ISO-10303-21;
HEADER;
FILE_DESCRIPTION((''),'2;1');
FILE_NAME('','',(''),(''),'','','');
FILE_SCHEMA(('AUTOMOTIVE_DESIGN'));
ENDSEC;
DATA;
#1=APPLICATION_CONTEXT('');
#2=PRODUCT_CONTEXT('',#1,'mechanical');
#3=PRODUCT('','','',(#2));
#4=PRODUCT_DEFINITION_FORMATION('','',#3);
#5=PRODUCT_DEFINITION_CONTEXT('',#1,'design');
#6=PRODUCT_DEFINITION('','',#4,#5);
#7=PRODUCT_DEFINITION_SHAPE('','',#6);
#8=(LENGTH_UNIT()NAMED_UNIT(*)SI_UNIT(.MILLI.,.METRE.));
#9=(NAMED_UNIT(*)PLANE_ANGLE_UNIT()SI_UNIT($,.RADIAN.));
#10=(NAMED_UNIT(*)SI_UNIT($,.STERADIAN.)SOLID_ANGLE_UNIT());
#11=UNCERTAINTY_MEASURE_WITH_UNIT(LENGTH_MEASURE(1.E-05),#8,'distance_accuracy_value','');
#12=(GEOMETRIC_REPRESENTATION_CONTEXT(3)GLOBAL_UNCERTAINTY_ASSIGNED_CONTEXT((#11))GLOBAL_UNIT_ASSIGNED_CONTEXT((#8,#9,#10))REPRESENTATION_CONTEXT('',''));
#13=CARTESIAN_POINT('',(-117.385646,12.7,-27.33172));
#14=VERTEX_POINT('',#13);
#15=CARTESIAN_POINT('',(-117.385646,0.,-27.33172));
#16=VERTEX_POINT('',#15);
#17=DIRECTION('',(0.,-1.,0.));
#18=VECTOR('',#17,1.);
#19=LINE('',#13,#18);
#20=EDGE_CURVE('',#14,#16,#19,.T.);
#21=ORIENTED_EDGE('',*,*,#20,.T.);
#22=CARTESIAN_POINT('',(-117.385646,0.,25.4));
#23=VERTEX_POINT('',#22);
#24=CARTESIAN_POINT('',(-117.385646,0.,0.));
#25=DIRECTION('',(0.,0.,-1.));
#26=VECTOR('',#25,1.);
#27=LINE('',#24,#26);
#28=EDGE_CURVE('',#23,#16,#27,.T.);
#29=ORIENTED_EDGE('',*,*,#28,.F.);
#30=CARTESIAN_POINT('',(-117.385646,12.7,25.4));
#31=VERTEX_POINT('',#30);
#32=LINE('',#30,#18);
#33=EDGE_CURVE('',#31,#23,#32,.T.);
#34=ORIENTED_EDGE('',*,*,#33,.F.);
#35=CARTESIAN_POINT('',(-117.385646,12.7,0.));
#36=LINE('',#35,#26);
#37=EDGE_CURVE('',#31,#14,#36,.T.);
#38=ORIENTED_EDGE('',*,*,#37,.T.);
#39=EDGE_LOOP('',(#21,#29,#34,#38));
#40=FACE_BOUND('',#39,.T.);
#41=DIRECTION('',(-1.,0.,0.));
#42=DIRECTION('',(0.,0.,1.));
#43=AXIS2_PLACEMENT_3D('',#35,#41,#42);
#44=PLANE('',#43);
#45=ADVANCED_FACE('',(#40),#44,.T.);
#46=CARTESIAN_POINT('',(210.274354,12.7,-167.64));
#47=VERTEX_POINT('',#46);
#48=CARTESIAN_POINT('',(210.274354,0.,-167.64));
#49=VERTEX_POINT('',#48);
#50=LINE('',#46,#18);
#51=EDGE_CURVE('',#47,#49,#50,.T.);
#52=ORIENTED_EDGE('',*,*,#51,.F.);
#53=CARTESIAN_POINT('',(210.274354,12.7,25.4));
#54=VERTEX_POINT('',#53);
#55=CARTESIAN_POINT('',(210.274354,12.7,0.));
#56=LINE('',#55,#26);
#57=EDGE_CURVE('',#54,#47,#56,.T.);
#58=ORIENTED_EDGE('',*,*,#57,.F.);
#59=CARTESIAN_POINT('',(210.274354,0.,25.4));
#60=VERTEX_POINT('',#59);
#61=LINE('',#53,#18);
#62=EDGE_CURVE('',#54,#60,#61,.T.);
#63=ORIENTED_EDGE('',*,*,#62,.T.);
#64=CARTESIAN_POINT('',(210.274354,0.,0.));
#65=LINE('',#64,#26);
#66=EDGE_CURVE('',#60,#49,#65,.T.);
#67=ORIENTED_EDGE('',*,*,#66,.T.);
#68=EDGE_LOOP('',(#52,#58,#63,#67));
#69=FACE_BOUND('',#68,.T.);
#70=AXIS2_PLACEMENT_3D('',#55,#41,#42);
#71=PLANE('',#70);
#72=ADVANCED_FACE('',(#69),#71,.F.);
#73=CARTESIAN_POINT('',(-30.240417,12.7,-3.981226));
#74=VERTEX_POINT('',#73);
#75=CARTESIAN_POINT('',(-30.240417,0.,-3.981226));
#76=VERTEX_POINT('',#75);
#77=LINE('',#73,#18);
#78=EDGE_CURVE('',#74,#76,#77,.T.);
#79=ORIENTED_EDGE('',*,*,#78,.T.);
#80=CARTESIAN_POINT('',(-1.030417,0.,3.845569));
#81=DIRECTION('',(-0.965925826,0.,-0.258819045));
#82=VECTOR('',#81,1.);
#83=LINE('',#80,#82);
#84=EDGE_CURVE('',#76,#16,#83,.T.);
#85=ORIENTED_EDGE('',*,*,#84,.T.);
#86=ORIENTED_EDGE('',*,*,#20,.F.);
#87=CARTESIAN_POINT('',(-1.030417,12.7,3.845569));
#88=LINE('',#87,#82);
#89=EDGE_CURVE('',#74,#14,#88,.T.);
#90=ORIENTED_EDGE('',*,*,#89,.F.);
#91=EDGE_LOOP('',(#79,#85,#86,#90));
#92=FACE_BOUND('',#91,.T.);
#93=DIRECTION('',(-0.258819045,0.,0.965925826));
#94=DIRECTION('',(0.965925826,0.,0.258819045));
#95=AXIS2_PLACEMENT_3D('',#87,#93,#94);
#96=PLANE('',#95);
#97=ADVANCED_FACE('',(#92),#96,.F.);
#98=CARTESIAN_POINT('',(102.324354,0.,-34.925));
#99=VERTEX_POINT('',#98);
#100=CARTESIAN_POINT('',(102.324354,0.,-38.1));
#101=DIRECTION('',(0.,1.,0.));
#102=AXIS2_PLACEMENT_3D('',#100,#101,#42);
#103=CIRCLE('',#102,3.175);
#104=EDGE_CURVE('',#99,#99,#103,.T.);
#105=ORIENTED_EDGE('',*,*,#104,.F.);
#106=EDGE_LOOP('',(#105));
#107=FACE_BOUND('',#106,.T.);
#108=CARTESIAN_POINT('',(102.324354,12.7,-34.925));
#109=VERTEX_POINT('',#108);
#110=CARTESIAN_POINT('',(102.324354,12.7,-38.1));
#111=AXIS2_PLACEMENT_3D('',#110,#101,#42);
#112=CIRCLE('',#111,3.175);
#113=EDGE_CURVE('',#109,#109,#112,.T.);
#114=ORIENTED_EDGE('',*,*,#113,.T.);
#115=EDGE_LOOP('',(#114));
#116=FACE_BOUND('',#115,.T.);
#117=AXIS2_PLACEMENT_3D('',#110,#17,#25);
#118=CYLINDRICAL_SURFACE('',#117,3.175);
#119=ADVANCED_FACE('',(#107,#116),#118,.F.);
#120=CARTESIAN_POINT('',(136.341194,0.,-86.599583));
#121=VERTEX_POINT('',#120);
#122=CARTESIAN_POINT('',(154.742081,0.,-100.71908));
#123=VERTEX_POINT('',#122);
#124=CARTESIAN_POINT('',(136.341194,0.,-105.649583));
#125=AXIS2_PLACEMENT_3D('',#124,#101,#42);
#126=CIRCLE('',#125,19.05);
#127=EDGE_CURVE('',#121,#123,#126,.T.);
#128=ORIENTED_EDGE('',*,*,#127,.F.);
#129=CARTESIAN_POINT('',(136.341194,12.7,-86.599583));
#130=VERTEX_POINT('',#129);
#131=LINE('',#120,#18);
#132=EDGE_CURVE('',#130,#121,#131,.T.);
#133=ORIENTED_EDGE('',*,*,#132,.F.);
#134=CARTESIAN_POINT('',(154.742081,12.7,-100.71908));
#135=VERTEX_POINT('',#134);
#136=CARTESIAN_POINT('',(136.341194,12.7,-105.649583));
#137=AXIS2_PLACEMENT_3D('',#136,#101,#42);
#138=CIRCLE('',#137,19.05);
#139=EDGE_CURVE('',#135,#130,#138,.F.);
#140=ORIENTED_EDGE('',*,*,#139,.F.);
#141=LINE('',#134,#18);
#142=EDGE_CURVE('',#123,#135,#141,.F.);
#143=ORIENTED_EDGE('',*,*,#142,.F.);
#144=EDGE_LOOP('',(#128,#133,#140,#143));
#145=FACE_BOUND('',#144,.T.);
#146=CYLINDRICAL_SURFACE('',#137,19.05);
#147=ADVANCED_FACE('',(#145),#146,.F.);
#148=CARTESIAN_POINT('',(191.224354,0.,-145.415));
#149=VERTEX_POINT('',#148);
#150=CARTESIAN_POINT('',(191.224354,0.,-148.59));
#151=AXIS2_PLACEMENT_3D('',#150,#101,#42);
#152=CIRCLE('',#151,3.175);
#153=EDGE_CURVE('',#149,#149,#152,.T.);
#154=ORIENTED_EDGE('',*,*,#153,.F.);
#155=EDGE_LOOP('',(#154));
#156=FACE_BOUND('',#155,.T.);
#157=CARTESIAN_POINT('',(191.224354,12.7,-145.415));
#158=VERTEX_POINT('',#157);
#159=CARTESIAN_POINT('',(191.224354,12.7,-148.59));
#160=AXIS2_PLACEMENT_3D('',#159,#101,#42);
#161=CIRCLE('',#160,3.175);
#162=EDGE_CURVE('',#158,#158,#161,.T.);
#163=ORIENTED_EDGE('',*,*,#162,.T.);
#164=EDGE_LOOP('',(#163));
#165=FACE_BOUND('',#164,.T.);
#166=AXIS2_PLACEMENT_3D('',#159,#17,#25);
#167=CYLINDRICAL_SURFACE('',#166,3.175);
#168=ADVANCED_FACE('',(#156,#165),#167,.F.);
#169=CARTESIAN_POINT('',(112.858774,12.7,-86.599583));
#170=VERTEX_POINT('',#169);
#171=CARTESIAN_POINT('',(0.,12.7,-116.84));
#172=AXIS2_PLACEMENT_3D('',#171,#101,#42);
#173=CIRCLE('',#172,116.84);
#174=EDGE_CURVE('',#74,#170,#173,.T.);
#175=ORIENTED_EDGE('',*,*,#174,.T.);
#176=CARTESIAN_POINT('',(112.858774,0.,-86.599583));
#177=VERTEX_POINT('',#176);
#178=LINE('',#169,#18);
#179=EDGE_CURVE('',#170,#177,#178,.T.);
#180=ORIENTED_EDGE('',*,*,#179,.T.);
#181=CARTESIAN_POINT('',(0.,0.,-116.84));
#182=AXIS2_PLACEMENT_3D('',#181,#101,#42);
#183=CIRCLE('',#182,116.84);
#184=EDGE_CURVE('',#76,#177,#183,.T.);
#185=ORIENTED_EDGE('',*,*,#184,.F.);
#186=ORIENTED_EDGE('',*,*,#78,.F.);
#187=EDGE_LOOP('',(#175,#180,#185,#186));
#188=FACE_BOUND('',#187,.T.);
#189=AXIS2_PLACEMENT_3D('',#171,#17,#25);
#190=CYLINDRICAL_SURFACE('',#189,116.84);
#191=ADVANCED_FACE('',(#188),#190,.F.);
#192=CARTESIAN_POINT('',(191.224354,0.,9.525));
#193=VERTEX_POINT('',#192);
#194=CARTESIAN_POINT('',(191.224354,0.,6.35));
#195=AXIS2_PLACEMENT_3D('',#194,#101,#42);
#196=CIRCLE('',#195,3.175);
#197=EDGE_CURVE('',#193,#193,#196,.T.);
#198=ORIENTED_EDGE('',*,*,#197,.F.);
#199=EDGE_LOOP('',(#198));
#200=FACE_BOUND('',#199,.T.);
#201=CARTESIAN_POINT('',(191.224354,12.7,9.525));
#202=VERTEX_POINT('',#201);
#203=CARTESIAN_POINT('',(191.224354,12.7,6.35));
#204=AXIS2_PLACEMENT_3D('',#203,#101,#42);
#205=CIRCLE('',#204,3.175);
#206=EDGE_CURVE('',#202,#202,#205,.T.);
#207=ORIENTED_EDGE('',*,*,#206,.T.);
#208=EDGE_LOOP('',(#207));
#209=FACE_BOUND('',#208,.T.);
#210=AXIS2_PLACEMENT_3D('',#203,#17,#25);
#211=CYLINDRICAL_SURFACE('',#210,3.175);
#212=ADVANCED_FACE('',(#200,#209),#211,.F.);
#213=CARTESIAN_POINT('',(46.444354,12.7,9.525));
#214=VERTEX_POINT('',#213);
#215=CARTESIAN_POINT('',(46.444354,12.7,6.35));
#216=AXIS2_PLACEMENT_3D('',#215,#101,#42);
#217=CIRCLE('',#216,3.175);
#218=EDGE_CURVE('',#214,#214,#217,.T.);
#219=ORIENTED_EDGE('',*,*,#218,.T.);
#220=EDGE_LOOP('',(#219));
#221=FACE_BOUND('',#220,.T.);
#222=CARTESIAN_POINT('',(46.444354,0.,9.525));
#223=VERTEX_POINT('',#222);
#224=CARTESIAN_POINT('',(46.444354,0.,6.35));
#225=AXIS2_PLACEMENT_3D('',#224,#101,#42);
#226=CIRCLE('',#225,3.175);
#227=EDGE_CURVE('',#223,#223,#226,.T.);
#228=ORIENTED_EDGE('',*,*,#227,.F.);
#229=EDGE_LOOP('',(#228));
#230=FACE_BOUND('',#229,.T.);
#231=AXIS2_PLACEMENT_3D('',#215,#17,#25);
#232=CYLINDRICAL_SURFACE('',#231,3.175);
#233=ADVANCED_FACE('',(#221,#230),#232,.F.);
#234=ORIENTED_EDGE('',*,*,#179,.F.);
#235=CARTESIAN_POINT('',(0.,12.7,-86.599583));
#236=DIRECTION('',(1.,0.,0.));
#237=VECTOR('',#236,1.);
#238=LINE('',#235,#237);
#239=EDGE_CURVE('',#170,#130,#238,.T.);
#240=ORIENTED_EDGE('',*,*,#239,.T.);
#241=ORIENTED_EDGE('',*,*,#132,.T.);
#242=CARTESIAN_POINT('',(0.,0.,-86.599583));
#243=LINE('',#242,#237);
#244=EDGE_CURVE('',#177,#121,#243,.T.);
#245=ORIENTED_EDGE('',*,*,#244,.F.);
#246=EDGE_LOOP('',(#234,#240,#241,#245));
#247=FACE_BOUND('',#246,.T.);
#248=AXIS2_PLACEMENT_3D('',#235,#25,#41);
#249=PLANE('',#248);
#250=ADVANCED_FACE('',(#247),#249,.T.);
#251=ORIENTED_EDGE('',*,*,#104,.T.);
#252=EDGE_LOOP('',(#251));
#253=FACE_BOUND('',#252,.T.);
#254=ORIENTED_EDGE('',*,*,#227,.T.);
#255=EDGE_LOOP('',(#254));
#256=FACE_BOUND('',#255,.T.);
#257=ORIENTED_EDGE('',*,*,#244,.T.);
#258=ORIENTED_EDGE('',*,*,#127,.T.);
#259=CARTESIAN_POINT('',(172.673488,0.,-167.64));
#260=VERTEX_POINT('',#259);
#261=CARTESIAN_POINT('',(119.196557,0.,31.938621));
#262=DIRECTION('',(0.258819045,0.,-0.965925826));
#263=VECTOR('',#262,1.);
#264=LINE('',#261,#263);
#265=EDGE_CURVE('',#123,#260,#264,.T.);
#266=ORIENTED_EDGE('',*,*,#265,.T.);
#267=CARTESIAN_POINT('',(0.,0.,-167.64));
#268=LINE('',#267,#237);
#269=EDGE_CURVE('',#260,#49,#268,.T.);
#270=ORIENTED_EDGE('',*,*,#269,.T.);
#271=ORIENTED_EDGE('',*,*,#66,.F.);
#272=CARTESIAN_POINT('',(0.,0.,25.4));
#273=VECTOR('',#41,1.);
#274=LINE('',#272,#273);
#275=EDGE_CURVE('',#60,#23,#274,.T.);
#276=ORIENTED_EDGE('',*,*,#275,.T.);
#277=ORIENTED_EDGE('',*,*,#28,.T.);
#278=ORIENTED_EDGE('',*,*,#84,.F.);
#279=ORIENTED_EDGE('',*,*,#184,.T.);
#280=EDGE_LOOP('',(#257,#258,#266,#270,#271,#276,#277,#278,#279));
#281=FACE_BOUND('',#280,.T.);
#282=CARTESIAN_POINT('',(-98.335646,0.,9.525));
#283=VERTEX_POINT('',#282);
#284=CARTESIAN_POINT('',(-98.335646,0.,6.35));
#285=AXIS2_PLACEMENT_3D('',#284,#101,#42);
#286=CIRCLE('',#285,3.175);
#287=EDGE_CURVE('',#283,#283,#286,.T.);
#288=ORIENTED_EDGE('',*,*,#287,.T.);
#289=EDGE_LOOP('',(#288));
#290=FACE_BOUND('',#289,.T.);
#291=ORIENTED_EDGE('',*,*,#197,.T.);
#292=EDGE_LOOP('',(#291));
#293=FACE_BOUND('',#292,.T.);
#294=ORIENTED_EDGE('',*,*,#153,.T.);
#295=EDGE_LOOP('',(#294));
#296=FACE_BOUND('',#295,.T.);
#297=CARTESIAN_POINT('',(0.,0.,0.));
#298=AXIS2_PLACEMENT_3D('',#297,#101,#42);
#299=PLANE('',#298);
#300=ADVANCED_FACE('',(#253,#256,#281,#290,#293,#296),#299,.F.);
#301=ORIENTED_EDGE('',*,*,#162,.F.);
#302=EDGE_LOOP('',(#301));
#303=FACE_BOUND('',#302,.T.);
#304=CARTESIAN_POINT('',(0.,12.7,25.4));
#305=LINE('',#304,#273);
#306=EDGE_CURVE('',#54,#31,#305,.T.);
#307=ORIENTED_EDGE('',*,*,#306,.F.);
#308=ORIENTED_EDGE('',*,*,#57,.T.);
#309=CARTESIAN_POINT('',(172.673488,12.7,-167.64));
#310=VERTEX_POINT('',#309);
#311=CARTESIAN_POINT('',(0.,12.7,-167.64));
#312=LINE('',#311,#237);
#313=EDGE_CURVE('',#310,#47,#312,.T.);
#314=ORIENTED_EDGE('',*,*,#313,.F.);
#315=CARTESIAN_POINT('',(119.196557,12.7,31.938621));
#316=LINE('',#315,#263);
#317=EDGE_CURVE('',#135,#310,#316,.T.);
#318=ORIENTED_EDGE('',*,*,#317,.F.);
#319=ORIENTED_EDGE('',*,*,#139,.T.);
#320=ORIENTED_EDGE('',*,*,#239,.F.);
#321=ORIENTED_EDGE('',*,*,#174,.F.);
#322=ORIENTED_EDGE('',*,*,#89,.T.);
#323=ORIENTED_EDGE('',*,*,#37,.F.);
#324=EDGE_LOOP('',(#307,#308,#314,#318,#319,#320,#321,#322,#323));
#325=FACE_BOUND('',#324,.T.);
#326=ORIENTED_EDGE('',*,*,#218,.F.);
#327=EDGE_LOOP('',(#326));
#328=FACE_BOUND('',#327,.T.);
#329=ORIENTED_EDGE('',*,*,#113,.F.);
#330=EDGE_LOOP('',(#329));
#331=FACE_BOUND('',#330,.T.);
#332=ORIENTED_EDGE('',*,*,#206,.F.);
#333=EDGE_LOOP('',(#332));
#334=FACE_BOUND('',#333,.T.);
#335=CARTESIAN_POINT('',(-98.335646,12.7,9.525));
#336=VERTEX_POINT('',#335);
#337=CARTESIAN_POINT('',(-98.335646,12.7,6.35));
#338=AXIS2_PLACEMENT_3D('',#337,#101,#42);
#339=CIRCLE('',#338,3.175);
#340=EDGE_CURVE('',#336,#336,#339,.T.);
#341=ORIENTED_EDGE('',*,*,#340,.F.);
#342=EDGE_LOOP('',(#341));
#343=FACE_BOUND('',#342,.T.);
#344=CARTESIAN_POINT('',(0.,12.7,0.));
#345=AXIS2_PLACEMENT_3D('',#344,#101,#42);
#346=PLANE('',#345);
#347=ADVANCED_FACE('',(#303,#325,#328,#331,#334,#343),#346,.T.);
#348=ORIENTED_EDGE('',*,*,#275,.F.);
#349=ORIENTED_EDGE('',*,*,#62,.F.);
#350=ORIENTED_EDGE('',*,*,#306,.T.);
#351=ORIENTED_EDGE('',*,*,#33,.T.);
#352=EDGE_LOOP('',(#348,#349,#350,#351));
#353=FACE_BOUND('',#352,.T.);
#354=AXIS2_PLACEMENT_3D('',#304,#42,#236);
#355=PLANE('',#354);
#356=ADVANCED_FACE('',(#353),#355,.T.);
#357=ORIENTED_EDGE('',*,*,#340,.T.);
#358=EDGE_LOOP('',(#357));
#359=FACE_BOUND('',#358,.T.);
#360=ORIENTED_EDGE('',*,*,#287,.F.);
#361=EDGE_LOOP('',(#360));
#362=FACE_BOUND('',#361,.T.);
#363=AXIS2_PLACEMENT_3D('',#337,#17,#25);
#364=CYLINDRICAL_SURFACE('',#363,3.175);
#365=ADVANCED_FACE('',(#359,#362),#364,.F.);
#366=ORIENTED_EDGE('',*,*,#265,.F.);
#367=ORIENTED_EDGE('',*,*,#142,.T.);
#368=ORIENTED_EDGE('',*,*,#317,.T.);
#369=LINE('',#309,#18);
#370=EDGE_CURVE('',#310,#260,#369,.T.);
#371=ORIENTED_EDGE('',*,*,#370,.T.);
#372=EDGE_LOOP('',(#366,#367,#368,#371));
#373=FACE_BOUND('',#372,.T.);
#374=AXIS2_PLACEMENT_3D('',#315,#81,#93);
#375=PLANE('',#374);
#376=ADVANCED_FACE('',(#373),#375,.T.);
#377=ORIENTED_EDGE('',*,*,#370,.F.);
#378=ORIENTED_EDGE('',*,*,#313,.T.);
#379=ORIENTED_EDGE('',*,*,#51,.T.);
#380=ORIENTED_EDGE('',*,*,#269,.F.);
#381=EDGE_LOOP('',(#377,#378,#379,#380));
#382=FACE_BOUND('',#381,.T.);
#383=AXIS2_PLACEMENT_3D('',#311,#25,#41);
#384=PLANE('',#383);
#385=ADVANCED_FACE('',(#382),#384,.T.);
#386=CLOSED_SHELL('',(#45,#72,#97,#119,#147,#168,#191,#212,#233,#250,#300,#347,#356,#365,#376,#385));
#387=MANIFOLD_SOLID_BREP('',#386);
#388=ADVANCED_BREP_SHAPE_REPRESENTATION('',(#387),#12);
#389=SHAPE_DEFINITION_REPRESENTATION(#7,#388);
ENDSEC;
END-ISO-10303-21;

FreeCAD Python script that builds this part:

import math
import FreeCAD as App
import Part
import Sketcher
Q = App.Units.Quantity


def edges_at(feature, points):
    """Names of the edges that pass closest to the given points."""
    edges = feature.Shape.Edges
    near = lambda p: min(range(len(edges)), key=lambda i: edges[i].distToShape(Part.Vertex(*p))[0])
    return sorted({f"Edge{near(p) + 1}" for p in points})

doc = App.newDocument("Part")
body = doc.addObject("PartDesign::Body", "Body")

sketch1 = body.newObject("Sketcher::SketchObject", "Sketch")
sketch1.AttachmentSupport = (doc.getObject("XZ_Plane"), [""])
sketch1.MapMode = "FlatFace"
sketch1.addGeometry([
    Part.ArcOfCircle(Part.Circle(App.Vector(0, -116.84, 0), App.Vector(0, 0, 1), 116.84), math.radians(15), math.radians(90)),
    Part.ArcOfCircle(Part.Circle(App.Vector(0, -116.84, 0), App.Vector(0, 0, 1), 116.84), math.radians(90), math.radians(105)),
    Part.LineSegment(App.Vector(-30.240417, -3.981226, 0), App.Vector(-117.385646, -27.33172, 0)),
    Part.LineSegment(App.Vector(-117.385646, -27.33172, 0), App.Vector(-117.385646, 25.4, 0)),
    Part.LineSegment(App.Vector(-117.385646, 25.4, 0), App.Vector(210.274354, 25.4, 0)),
    Part.LineSegment(App.Vector(210.274354, 25.4, 0), App.Vector(210.274354, -167.64, 0)),
    Part.LineSegment(App.Vector(210.274354, -167.64, 0), App.Vector(172.673488, -167.64, 0)),
    Part.LineSegment(App.Vector(172.673488, -167.64, 0), App.Vector(150.958774, -86.599583, 0)),
    Part.LineSegment(App.Vector(150.958774, -86.599583, 0), App.Vector(112.858774, -86.599583, 0)),
    Part.Circle(App.Vector(191.224354, 6.35, 0), App.Vector(0, 0, 1), 3.175),
    Part.Circle(App.Vector(102.324354, -38.1, 0), App.Vector(0, 0, 1), 3.175),
    Part.Circle(App.Vector(46.444354, 6.35, 0), App.Vector(0, 0, 1), 3.175),
    Part.Circle(App.Vector(-98.335646, 6.35, 0), App.Vector(0, 0, 1), 3.175),
    Part.Circle(App.Vector(191.224354, -148.59, 0), App.Vector(0, 0, 1), 3.175),
], False)
sketch1.addConstraint([
    Sketcher.Constraint("Tangent", 0, 2, 1, 1),
    Sketcher.Constraint("Tangent", 1, 2, 2, 1),
    Sketcher.Constraint("Coincident", 2, 2, 3, 1),
    Sketcher.Constraint("Coincident", 3, 2, 4, 1),
    Sketcher.Constraint("Coincident", 4, 2, 5, 1),
    Sketcher.Constraint("Coincident", 5, 2, 6, 1),
    Sketcher.Constraint("Coincident", 6, 2, 7, 1),
    Sketcher.Constraint("Coincident", 7, 2, 8, 1),
    Sketcher.Constraint("Coincident", 8, 2, 0, 1),
    Sketcher.Constraint("Vertical", 3),
    Sketcher.Constraint("Horizontal", 4),
    Sketcher.Constraint("Vertical", 5),
    Sketcher.Constraint("Horizontal", 6),
    Sketcher.Constraint("Horizontal", 8),
    Sketcher.Constraint("Coincident", 0, 2, -1, 1),
    Sketcher.Constraint("Equal", 0, 1),
    Sketcher.Constraint("Equal", 9, 10),
    Sketcher.Constraint("Equal", 10, 11),
    Sketcher.Constraint("Equal", 11, 12),
    Sketcher.Constraint("Equal", 12, 13),
    Sketcher.Constraint("PointOnObject", 0, 3, -2),
    Sketcher.Constraint("Perpendicular", 2, 7),
    Sketcher.Constraint("Horizontal", 9, 3, 11, 3),
    Sketcher.Constraint("Horizontal", 11, 3, 12, 3),
    Sketcher.Constraint("Vertical", 9, 3, 13, 3),
    Sketcher.Constraint("Radius", 0, Q("4.6 in")),
    Sketcher.Constraint("Diameter", 9, Q("0.25 in")),
    Sketcher.Constraint("DistanceX", 4, 1, 4, 2, Q("12.9 in")),
    Sketcher.Constraint("DistanceX", 8, 2, 8, 1, Q("1.5 in")),
    Sketcher.Constraint("DistanceY", 5, 2, 5, 1, Q("7.6 in")),
    Sketcher.Constraint("DistanceY", -1, 1, 3, 2, Q("1 in")),
    Sketcher.Constraint("Angle", 2, Q("-165 deg")),
    Sketcher.Constraint("DistanceY", 10, 3, -1, 1, Q("1.5 in")),
    Sketcher.Constraint("DistanceX", 10, 3, 9, 3, Q("3.5 in")),
    Sketcher.Constraint("DistanceX", 11, 3, 10, 3, Q("2.2 in")),
    Sketcher.Constraint("DistanceX", 12, 3, 11, 3, Q("5.7 in")),
    Sketcher.Constraint("DistanceY", 13, 3, 9, 3, Q("6.1 in")),
    Sketcher.Constraint("DistanceY", -1, 1, 9, 3, Q("0.25 in")),
    Sketcher.Constraint("DistanceX", 2, 2, 12, 3, Q("0.75 in")),
    Sketcher.Constraint("DistanceY", 3, 1, 3, 2, Q("52.73172 mm")),
    Sketcher.Constraint("DistanceX", 10, 3, 7, 2, Q("48.63442 mm")),
])
pad1 = body.newObject("PartDesign::Pad", "Pad")
pad1.Profile = sketch1
pad1.Length = Q("0.5 in")
pad1.Reversed = True
doc.recompute()

fillet = body.newObject("PartDesign::Fillet", "Fillet")
fillet.Base = (pad1, edges_at(pad1, [(150.959, 6.35, -86.6)]))
fillet.Radius = Q("0.75 in")

doc.recompute()
